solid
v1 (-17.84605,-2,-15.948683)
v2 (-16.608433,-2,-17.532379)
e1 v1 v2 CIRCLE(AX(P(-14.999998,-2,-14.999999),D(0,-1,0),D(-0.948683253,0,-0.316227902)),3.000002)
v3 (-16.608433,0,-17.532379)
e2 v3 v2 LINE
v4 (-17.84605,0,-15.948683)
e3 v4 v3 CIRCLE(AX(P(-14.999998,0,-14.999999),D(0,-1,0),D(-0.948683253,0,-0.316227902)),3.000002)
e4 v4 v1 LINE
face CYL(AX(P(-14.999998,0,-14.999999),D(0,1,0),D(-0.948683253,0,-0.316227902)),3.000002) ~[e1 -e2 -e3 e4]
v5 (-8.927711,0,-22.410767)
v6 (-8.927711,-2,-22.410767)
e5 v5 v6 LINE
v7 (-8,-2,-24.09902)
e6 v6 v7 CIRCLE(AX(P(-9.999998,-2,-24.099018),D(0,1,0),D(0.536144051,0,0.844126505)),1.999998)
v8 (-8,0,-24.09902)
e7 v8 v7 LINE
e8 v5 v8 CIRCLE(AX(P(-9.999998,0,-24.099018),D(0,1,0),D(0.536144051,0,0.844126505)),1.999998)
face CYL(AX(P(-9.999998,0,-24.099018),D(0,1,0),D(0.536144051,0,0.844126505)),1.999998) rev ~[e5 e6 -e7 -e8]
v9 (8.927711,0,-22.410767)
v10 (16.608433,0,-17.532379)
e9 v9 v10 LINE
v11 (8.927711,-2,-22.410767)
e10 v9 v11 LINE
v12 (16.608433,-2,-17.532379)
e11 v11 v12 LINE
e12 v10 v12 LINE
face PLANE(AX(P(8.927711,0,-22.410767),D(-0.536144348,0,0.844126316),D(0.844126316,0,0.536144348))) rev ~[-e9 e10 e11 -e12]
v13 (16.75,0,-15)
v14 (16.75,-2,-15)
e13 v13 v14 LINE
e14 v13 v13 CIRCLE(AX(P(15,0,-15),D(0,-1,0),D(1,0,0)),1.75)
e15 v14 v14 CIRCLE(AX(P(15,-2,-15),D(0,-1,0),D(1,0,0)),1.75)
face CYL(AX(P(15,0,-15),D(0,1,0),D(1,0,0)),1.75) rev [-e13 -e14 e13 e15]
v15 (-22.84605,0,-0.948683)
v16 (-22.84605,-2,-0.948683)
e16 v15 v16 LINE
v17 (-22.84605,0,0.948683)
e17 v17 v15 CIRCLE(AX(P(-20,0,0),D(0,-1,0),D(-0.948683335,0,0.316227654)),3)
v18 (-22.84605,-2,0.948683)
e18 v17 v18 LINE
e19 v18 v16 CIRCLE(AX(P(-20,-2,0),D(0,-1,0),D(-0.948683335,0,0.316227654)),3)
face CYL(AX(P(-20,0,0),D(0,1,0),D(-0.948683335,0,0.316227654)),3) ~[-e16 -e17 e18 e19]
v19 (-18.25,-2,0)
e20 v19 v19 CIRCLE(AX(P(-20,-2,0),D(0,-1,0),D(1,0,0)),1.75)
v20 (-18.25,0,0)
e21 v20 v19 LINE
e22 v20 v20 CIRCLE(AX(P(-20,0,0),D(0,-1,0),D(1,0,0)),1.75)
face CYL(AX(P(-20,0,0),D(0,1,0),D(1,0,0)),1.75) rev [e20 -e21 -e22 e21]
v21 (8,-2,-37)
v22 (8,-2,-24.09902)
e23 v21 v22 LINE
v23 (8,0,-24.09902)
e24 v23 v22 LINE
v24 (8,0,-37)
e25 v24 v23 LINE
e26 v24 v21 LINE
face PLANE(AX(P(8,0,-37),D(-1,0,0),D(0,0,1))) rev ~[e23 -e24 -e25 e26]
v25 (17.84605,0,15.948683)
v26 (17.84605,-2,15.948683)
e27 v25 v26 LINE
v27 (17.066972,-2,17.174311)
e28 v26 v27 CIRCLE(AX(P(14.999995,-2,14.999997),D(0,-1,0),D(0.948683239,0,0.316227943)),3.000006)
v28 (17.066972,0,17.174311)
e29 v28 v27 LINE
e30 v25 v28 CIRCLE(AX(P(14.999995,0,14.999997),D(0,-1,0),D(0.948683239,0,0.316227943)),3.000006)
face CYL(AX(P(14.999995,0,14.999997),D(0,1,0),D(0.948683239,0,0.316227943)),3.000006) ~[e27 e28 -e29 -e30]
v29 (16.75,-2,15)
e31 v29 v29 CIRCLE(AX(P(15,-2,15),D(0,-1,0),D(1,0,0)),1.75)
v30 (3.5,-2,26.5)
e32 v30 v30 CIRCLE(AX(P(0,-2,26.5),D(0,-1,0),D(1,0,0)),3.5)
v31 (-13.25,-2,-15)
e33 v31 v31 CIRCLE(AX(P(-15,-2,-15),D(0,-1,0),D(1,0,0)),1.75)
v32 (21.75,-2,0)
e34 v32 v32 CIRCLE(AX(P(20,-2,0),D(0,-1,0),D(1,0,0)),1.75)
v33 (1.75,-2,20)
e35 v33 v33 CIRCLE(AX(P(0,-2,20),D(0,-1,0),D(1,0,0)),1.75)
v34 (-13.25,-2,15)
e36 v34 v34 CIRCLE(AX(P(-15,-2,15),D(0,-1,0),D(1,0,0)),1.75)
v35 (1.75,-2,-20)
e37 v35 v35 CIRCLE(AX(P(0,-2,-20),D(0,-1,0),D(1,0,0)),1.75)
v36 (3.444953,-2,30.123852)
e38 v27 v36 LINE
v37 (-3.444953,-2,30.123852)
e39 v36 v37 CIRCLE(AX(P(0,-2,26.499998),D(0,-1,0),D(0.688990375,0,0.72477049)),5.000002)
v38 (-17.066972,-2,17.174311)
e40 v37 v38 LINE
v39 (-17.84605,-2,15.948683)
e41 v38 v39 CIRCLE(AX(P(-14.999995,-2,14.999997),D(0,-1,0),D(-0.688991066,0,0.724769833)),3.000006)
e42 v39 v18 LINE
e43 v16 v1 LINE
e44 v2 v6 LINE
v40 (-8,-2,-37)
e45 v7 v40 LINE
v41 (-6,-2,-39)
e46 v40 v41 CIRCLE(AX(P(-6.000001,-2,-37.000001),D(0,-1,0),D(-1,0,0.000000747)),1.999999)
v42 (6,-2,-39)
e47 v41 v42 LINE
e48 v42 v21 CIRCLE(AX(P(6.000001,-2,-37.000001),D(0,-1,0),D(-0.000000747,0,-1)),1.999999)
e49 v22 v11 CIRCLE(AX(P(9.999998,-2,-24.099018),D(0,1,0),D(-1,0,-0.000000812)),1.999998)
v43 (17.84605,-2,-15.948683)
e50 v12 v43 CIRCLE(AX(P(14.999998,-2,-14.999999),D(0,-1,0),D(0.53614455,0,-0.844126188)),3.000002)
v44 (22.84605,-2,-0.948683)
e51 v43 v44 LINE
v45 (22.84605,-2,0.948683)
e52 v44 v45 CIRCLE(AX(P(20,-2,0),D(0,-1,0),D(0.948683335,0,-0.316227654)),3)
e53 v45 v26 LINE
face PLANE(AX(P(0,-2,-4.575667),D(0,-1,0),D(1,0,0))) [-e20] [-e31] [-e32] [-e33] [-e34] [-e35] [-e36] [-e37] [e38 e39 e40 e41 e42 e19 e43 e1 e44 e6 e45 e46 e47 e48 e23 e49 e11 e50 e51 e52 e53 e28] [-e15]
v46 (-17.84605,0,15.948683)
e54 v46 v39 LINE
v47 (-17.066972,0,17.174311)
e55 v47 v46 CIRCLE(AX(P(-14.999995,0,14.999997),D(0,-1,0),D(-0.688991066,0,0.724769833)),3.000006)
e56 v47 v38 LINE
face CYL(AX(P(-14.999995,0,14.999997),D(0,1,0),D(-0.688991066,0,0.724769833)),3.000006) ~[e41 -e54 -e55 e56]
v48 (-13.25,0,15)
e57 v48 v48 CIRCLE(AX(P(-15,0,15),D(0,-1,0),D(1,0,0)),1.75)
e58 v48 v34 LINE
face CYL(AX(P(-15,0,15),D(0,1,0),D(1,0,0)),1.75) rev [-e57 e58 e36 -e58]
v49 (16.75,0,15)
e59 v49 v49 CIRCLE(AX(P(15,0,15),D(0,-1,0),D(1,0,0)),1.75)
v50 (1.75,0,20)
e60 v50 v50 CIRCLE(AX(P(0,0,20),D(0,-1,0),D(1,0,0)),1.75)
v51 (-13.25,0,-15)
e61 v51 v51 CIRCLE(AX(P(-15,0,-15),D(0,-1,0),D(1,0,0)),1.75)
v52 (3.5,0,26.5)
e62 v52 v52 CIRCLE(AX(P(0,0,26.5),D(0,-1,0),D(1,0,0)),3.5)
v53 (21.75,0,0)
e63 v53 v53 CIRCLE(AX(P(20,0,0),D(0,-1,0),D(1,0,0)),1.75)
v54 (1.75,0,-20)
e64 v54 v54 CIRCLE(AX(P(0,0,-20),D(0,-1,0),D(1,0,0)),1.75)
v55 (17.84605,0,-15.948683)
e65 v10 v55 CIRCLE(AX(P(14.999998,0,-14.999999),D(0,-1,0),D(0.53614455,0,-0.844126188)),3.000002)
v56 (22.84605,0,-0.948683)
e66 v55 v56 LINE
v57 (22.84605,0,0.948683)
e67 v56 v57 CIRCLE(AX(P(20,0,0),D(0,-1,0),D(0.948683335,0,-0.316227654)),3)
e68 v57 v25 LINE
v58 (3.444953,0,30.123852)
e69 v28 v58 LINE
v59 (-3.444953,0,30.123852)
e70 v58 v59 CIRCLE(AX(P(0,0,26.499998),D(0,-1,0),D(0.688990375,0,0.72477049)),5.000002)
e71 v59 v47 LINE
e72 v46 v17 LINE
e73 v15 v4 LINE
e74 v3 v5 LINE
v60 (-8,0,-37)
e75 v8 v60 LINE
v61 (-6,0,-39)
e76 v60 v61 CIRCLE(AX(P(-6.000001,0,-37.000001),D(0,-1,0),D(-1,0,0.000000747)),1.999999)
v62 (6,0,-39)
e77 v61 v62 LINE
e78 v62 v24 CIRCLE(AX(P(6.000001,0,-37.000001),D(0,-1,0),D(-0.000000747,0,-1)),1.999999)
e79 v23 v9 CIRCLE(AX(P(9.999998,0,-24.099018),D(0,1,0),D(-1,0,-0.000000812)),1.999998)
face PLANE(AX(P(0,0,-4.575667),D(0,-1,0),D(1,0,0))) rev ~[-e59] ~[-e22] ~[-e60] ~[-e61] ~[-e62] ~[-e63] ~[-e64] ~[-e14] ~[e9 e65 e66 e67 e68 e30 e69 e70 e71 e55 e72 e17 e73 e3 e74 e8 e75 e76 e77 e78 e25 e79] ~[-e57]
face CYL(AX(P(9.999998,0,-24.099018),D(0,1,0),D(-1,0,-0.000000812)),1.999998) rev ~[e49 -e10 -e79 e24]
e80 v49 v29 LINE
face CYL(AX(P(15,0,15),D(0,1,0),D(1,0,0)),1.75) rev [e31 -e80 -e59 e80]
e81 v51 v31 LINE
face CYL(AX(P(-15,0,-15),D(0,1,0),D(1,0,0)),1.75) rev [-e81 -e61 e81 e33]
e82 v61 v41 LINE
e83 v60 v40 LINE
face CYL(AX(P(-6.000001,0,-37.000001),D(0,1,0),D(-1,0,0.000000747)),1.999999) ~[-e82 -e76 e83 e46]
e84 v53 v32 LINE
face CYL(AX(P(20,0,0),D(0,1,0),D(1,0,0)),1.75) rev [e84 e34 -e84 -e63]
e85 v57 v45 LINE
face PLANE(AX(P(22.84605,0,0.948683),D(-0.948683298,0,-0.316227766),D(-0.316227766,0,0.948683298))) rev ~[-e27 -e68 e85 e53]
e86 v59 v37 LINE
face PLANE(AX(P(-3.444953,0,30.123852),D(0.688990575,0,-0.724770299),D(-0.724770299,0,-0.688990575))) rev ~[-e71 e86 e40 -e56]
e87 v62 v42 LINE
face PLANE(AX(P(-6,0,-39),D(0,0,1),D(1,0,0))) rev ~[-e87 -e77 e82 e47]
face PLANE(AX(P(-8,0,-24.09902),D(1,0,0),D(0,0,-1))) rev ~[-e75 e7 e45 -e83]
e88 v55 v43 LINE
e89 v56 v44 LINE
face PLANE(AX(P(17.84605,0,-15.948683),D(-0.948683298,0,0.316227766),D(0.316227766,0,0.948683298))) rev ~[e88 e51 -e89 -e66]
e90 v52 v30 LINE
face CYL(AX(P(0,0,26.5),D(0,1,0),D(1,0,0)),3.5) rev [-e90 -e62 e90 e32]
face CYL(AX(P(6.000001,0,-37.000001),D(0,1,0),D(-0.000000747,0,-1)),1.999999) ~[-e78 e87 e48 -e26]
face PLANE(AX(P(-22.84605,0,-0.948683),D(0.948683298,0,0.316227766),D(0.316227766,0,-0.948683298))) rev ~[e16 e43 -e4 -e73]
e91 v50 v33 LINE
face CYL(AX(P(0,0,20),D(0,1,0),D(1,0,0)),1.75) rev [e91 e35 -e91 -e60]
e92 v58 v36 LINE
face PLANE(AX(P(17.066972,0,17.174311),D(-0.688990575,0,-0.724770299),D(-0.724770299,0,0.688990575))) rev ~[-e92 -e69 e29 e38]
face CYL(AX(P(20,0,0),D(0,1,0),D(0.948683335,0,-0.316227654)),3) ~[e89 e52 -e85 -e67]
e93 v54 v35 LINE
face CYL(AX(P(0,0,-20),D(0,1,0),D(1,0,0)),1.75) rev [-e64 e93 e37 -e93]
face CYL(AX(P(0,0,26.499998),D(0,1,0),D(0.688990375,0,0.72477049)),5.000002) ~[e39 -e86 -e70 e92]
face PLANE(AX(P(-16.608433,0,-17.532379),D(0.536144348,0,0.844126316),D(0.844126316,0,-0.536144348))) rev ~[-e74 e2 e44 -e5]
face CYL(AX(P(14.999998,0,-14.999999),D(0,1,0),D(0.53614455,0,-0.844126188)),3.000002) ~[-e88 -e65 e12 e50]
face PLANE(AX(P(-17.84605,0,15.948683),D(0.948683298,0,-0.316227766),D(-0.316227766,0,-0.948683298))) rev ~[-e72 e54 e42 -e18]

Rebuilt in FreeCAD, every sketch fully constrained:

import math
import FreeCAD as App
import Part
import Sketcher

V = App.Vector

doc = App.newDocument("Part")
body = doc.addObject("PartDesign::Body", "Body")

# Sketch on XZ plane
sketch1 = body.newObject("Sketcher::SketchObject", "Sketch")
sketch1.AttachmentSupport = (doc.getObject("XZ_Plane"), [""])
sketch1.MapMode = "FlatFace"
sketch1.addGeometry(Part.LineSegment(V(8.9, -22.4, 0), V(16.6, -17.5, 0)), False)
sketch1.addGeometry(Part.ArcOfCircle(Part.Circle(V(15, -15, 0), V(0, 0, 1), 3), math.radians(-58), math.radians(-18)), False)
sketch1.addGeometry(Part.LineSegment(V(17.8, -15.9, 0), V(22.8, -0.9, 0)), False)
sketch1.addGeometry(Part.ArcOfCircle(Part.Circle(V(20, 0, 0), V(0, 0, 1), 3), math.radians(-18), math.radians(18)), False)
sketch1.addGeometry(Part.LineSegment(V(22.8, 0.9, 0), V(17.8, 15.9, 0)), False)
sketch1.addGeometry(Part.ArcOfCircle(Part.Circle(V(15, 15, 0), V(0, 0, 1), 3), math.radians(18), math.radians(46)), False)
sketch1.addGeometry(Part.LineSegment(V(17.1, 17.2, 0), V(3.4, 30.1, 0)), False)
sketch1.addGeometry(Part.ArcOfCircle(Part.Circle(V(0, 26.5, 0), V(0, 0, 1), 5), math.radians(46), math.radians(134)), False)
sketch1.addGeometry(Part.LineSegment(V(-3.4, 30.1, 0), V(-17.1, 17.2, 0)), False)
sketch1.addGeometry(Part.ArcOfCircle(Part.Circle(V(-15, 15, 0), V(0, 0, 1), 3), math.radians(134), math.radians(162)), False)
sketch1.addGeometry(Part.LineSegment(V(-17.8, 15.9, 0), V(-22.8, 0.9, 0)), False)
sketch1.addGeometry(Part.ArcOfCircle(Part.Circle(V(-20, 0, 0), V(0, 0, 1), 3), math.radians(162), math.radians(198)), False)
sketch1.addGeometry(Part.LineSegment(V(-22.8, -0.9, 0), V(-17.8, -15.9, 0)), False)
sketch1.addGeometry(Part.ArcOfCircle(Part.Circle(V(-15, -15, 0), V(0, 0, 1), 3), math.radians(-162), math.radians(-122)), False)
sketch1.addGeometry(Part.LineSegment(V(-16.6, -17.5, 0), V(-8.9, -22.4, 0)), False)
sketch1.addGeometry(Part.ArcOfCircle(Part.Circle(V(-10, -24.1, 0), V(0, 0, 1), 2), math.radians(0), math.radians(58)), False)
sketch1.addGeometry(Part.LineSegment(V(-8, -24.1, 0), V(-8, -37, 0)), False)
sketch1.addGeometry(Part.ArcOfCircle(Part.Circle(V(-6, -37, 0), V(0, 0, 1), 2), math.radians(180), math.radians(270)), False)
sketch1.addGeometry(Part.LineSegment(V(-6, -39, 0), V(6, -39, 0)), False)
sketch1.addGeometry(Part.ArcOfCircle(Part.Circle(V(6, -37, 0), V(0, 0, 1), 2), math.radians(-90), math.radians(0)), False)
sketch1.addGeometry(Part.LineSegment(V(8, -37, 0), V(8, -24.1, 0)), False)
sketch1.addGeometry(Part.ArcOfCircle(Part.Circle(V(10, -24.1, 0), V(0, 0, 1), 2), math.radians(122), math.radians(180)), False)
sketch1.addGeometry(Part.Circle(V(-15, -15, 0), V(0, 0, 1), 1.8), False)
sketch1.addGeometry(Part.Circle(V(-20, 0, 0), V(0, 0, 1), 1.8), False)
sketch1.addGeometry(Part.Circle(V(0, -20, 0), V(0, 0, 1), 1.8), False)
sketch1.addGeometry(Part.Circle(V(15, -15, 0), V(0, 0, 1), 1.8), False)
sketch1.addGeometry(Part.Circle(V(20, 0, 0), V(0, 0, 1), 1.8), False)
sketch1.addGeometry(Part.Circle(V(-15, 15, 0), V(0, 0, 1), 1.8), False)
sketch1.addGeometry(Part.Circle(V(15, 15, 0), V(0, 0, 1), 1.8), False)
sketch1.addGeometry(Part.Circle(V(0, 20, 0), V(0, 0, 1), 1.8), False)
sketch1.addGeometry(Part.Circle(V(0, 26.5, 0), V(0, 0, 1), 3.5), False)
sketch1.addConstraint(Sketcher.Constraint("Tangent", 0, 2, 1, 1))
sketch1.addConstraint(Sketcher.Constraint("Tangent", 1, 2, 2, 1))
sketch1.addConstraint(Sketcher.Constraint("Tangent", 2, 2, 3, 1))
sketch1.addConstraint(Sketcher.Constraint("Tangent", 3, 2, 4, 1))
sketch1.addConstraint(Sketcher.Constraint("Tangent", 4, 2, 5, 1))
sketch1.addConstraint(Sketcher.Constraint("Tangent", 5, 2, 6, 1))
sketch1.addConstraint(Sketcher.Constraint("Tangent", 6, 2, 7, 1))
sketch1.addConstraint(Sketcher.Constraint("Tangent", 7, 2, 8, 1))
sketch1.addConstraint(Sketcher.Constraint("Tangent", 8, 2, 9, 1))
sketch1.addConstraint(Sketcher.Constraint("Tangent", 9, 2, 10, 1))
sketch1.addConstraint(Sketcher.Constraint("Tangent", 10, 2, 11, 1))
sketch1.addConstraint(Sketcher.Constraint("Tangent", 11, 2, 12, 1))
sketch1.addConstraint(Sketcher.Constraint("Tangent", 12, 2, 13, 1))
sketch1.addConstraint(Sketcher.Constraint("Tangent", 13, 2, 14, 1))
sketch1.addConstraint(Sketcher.Constraint("Tangent", 14, 2, 15, 2))
sketch1.addConstraint(Sketcher.Constraint("Tangent", 15, 1, 16, 1))
sketch1.addConstraint(Sketcher.Constraint("Tangent", 16, 2, 17, 1))
sketch1.addConstraint(Sketcher.Constraint("Tangent", 17, 2, 18, 1))
sketch1.addConstraint(Sketcher.Constraint("Tangent", 18, 2, 19, 1))
sketch1.addConstraint(Sketcher.Constraint("Tangent", 19, 2, 20, 1))
sketch1.addConstraint(Sketcher.Constraint("Tangent", 20, 2, 21, 2))
sketch1.addConstraint(Sketcher.Constraint("Tangent", 21, 1, 0, 1))
sketch1.addConstraint(Sketcher.Constraint("Vertical", 16))
sketch1.addConstraint(Sketcher.Constraint("Horizontal", 18))
sketch1.addConstraint(Sketcher.Constraint("Vertical", 20))
sketch1.addConstraint(Sketcher.Constraint("Coincident", 22, 3, 13, 3))
sketch1.addConstraint(Sketcher.Constraint("Coincident", 23, 3, 11, 3))
sketch1.addConstraint(Sketcher.Constraint("Coincident", 25, 3, 1, 3))
sketch1.addConstraint(Sketcher.Constraint("Coincident", 26, 3, 3, 3))
sketch1.addConstraint(Sketcher.Constraint("Coincident", 27, 3, 9, 3))
sketch1.addConstraint(Sketcher.Constraint("Coincident", 28, 3, 5, 3))
sketch1.addConstraint(Sketcher.Constraint("Coincident", 30, 3, 7, 3))
sketch1.addConstraint(Sketcher.Constraint("Equal", 5, 9))
sketch1.addConstraint(Sketcher.Constraint("Equal", 3, 11))
sketch1.addConstraint(Sketcher.Constraint("Equal", 1, 13))
sketch1.addConstraint(Sketcher.Constraint("Equal", 15, 17))
sketch1.addConstraint(Sketcher.Constraint("Equal", 17, 19))
sketch1.addConstraint(Sketcher.Constraint("Equal", 19, 21))
sketch1.addConstraint(Sketcher.Constraint("Equal", 22, 23))
sketch1.addConstraint(Sketcher.Constraint("Equal", 23, 24))
sketch1.addConstraint(Sketcher.Constraint("Equal", 24, 25))
sketch1.addConstraint(Sketcher.Constraint("Equal", 25, 26))
sketch1.addConstraint(Sketcher.Constraint("Equal", 26, 27))
sketch1.addConstraint(Sketcher.Constraint("Equal", 27, 28))
sketch1.addConstraint(Sketcher.Constraint("Equal", 28, 29))
sketch1.addConstraint(Sketcher.Constraint("Symmetric", 1, 3, 9, 3, -1, 1))
sketch1.addConstraint(Sketcher.Constraint("Symmetric", 3, 3, 11, 3, -1, 1))
sketch1.addConstraint(Sketcher.Constraint("Symmetric", 5, 3, 13, 3, -1, 1))
sketch1.addConstraint(Sketcher.Constraint("Symmetric", 24, 3, 29, 3, -1, 1))
sketch1.addConstraint(Sketcher.Constraint("Symmetric", 5, 3, 9, 3, -2))
sketch1.addConstraint(Sketcher.Constraint("Symmetric", 15, 3, 21, 3, -2))
sketch1.addConstraint(Sketcher.Constraint("Symmetric", 2, 2, 3, 2, -1))
sketch1.addConstraint(Sketcher.Constraint("PointOnObject", 7, 3, -2))
sketch1.addConstraint(Sketcher.Constraint("PointOnObject", 24, 3, -2))
sketch1.addConstraint(Sketcher.Constraint("Diameter", 30, 7.0))
sketch1.addConstraint(Sketcher.Constraint("Radius", 3, 3.0))
sketch1.addConstraint(Sketcher.Constraint("Radius", 7, 5.000002))
sketch1.addConstraint(Sketcher.Constraint("Radius", 15, 1.999998))
sketch1.addConstraint(Sketcher.Constraint("Diameter", 22, 3.5))
sketch1.addConstraint(Sketcher.Constraint("DistanceX", 18, 1, 18, 2, 12.0))
sketch1.addConstraint(Sketcher.Constraint("DistanceX", -1, 1, 1, 3, 14.999998))
sketch1.addConstraint(Sketcher.Constraint("DistanceY", 1, 3, -1, 1, 14.999999))
sketch1.addConstraint(Sketcher.Constraint("DistanceX", -1, 1, 3, 3, 20.0))
sketch1.addConstraint(Sketcher.Constraint("DistanceY", 17, 3, -1, 1, 37.000001))
sketch1.addConstraint(Sketcher.Constraint("DistanceY", 24, 3, -1, 1, 20.0))
sketch1.addConstraint(Sketcher.Constraint("DistanceX", 1, 2, 2, 2, 5.0))
sketch1.addConstraint(Sketcher.Constraint("DistanceY", -1, 1, 7, 3, 26.499998))
sketch1.addConstraint(Sketcher.Constraint("DistanceY", 16, 2, 16, 1, 12.90098))
pad1 = body.newObject("PartDesign::Pad", "Pad")
pad1.Profile = sketch1
pad1.Length = 2

doc.recompute()
